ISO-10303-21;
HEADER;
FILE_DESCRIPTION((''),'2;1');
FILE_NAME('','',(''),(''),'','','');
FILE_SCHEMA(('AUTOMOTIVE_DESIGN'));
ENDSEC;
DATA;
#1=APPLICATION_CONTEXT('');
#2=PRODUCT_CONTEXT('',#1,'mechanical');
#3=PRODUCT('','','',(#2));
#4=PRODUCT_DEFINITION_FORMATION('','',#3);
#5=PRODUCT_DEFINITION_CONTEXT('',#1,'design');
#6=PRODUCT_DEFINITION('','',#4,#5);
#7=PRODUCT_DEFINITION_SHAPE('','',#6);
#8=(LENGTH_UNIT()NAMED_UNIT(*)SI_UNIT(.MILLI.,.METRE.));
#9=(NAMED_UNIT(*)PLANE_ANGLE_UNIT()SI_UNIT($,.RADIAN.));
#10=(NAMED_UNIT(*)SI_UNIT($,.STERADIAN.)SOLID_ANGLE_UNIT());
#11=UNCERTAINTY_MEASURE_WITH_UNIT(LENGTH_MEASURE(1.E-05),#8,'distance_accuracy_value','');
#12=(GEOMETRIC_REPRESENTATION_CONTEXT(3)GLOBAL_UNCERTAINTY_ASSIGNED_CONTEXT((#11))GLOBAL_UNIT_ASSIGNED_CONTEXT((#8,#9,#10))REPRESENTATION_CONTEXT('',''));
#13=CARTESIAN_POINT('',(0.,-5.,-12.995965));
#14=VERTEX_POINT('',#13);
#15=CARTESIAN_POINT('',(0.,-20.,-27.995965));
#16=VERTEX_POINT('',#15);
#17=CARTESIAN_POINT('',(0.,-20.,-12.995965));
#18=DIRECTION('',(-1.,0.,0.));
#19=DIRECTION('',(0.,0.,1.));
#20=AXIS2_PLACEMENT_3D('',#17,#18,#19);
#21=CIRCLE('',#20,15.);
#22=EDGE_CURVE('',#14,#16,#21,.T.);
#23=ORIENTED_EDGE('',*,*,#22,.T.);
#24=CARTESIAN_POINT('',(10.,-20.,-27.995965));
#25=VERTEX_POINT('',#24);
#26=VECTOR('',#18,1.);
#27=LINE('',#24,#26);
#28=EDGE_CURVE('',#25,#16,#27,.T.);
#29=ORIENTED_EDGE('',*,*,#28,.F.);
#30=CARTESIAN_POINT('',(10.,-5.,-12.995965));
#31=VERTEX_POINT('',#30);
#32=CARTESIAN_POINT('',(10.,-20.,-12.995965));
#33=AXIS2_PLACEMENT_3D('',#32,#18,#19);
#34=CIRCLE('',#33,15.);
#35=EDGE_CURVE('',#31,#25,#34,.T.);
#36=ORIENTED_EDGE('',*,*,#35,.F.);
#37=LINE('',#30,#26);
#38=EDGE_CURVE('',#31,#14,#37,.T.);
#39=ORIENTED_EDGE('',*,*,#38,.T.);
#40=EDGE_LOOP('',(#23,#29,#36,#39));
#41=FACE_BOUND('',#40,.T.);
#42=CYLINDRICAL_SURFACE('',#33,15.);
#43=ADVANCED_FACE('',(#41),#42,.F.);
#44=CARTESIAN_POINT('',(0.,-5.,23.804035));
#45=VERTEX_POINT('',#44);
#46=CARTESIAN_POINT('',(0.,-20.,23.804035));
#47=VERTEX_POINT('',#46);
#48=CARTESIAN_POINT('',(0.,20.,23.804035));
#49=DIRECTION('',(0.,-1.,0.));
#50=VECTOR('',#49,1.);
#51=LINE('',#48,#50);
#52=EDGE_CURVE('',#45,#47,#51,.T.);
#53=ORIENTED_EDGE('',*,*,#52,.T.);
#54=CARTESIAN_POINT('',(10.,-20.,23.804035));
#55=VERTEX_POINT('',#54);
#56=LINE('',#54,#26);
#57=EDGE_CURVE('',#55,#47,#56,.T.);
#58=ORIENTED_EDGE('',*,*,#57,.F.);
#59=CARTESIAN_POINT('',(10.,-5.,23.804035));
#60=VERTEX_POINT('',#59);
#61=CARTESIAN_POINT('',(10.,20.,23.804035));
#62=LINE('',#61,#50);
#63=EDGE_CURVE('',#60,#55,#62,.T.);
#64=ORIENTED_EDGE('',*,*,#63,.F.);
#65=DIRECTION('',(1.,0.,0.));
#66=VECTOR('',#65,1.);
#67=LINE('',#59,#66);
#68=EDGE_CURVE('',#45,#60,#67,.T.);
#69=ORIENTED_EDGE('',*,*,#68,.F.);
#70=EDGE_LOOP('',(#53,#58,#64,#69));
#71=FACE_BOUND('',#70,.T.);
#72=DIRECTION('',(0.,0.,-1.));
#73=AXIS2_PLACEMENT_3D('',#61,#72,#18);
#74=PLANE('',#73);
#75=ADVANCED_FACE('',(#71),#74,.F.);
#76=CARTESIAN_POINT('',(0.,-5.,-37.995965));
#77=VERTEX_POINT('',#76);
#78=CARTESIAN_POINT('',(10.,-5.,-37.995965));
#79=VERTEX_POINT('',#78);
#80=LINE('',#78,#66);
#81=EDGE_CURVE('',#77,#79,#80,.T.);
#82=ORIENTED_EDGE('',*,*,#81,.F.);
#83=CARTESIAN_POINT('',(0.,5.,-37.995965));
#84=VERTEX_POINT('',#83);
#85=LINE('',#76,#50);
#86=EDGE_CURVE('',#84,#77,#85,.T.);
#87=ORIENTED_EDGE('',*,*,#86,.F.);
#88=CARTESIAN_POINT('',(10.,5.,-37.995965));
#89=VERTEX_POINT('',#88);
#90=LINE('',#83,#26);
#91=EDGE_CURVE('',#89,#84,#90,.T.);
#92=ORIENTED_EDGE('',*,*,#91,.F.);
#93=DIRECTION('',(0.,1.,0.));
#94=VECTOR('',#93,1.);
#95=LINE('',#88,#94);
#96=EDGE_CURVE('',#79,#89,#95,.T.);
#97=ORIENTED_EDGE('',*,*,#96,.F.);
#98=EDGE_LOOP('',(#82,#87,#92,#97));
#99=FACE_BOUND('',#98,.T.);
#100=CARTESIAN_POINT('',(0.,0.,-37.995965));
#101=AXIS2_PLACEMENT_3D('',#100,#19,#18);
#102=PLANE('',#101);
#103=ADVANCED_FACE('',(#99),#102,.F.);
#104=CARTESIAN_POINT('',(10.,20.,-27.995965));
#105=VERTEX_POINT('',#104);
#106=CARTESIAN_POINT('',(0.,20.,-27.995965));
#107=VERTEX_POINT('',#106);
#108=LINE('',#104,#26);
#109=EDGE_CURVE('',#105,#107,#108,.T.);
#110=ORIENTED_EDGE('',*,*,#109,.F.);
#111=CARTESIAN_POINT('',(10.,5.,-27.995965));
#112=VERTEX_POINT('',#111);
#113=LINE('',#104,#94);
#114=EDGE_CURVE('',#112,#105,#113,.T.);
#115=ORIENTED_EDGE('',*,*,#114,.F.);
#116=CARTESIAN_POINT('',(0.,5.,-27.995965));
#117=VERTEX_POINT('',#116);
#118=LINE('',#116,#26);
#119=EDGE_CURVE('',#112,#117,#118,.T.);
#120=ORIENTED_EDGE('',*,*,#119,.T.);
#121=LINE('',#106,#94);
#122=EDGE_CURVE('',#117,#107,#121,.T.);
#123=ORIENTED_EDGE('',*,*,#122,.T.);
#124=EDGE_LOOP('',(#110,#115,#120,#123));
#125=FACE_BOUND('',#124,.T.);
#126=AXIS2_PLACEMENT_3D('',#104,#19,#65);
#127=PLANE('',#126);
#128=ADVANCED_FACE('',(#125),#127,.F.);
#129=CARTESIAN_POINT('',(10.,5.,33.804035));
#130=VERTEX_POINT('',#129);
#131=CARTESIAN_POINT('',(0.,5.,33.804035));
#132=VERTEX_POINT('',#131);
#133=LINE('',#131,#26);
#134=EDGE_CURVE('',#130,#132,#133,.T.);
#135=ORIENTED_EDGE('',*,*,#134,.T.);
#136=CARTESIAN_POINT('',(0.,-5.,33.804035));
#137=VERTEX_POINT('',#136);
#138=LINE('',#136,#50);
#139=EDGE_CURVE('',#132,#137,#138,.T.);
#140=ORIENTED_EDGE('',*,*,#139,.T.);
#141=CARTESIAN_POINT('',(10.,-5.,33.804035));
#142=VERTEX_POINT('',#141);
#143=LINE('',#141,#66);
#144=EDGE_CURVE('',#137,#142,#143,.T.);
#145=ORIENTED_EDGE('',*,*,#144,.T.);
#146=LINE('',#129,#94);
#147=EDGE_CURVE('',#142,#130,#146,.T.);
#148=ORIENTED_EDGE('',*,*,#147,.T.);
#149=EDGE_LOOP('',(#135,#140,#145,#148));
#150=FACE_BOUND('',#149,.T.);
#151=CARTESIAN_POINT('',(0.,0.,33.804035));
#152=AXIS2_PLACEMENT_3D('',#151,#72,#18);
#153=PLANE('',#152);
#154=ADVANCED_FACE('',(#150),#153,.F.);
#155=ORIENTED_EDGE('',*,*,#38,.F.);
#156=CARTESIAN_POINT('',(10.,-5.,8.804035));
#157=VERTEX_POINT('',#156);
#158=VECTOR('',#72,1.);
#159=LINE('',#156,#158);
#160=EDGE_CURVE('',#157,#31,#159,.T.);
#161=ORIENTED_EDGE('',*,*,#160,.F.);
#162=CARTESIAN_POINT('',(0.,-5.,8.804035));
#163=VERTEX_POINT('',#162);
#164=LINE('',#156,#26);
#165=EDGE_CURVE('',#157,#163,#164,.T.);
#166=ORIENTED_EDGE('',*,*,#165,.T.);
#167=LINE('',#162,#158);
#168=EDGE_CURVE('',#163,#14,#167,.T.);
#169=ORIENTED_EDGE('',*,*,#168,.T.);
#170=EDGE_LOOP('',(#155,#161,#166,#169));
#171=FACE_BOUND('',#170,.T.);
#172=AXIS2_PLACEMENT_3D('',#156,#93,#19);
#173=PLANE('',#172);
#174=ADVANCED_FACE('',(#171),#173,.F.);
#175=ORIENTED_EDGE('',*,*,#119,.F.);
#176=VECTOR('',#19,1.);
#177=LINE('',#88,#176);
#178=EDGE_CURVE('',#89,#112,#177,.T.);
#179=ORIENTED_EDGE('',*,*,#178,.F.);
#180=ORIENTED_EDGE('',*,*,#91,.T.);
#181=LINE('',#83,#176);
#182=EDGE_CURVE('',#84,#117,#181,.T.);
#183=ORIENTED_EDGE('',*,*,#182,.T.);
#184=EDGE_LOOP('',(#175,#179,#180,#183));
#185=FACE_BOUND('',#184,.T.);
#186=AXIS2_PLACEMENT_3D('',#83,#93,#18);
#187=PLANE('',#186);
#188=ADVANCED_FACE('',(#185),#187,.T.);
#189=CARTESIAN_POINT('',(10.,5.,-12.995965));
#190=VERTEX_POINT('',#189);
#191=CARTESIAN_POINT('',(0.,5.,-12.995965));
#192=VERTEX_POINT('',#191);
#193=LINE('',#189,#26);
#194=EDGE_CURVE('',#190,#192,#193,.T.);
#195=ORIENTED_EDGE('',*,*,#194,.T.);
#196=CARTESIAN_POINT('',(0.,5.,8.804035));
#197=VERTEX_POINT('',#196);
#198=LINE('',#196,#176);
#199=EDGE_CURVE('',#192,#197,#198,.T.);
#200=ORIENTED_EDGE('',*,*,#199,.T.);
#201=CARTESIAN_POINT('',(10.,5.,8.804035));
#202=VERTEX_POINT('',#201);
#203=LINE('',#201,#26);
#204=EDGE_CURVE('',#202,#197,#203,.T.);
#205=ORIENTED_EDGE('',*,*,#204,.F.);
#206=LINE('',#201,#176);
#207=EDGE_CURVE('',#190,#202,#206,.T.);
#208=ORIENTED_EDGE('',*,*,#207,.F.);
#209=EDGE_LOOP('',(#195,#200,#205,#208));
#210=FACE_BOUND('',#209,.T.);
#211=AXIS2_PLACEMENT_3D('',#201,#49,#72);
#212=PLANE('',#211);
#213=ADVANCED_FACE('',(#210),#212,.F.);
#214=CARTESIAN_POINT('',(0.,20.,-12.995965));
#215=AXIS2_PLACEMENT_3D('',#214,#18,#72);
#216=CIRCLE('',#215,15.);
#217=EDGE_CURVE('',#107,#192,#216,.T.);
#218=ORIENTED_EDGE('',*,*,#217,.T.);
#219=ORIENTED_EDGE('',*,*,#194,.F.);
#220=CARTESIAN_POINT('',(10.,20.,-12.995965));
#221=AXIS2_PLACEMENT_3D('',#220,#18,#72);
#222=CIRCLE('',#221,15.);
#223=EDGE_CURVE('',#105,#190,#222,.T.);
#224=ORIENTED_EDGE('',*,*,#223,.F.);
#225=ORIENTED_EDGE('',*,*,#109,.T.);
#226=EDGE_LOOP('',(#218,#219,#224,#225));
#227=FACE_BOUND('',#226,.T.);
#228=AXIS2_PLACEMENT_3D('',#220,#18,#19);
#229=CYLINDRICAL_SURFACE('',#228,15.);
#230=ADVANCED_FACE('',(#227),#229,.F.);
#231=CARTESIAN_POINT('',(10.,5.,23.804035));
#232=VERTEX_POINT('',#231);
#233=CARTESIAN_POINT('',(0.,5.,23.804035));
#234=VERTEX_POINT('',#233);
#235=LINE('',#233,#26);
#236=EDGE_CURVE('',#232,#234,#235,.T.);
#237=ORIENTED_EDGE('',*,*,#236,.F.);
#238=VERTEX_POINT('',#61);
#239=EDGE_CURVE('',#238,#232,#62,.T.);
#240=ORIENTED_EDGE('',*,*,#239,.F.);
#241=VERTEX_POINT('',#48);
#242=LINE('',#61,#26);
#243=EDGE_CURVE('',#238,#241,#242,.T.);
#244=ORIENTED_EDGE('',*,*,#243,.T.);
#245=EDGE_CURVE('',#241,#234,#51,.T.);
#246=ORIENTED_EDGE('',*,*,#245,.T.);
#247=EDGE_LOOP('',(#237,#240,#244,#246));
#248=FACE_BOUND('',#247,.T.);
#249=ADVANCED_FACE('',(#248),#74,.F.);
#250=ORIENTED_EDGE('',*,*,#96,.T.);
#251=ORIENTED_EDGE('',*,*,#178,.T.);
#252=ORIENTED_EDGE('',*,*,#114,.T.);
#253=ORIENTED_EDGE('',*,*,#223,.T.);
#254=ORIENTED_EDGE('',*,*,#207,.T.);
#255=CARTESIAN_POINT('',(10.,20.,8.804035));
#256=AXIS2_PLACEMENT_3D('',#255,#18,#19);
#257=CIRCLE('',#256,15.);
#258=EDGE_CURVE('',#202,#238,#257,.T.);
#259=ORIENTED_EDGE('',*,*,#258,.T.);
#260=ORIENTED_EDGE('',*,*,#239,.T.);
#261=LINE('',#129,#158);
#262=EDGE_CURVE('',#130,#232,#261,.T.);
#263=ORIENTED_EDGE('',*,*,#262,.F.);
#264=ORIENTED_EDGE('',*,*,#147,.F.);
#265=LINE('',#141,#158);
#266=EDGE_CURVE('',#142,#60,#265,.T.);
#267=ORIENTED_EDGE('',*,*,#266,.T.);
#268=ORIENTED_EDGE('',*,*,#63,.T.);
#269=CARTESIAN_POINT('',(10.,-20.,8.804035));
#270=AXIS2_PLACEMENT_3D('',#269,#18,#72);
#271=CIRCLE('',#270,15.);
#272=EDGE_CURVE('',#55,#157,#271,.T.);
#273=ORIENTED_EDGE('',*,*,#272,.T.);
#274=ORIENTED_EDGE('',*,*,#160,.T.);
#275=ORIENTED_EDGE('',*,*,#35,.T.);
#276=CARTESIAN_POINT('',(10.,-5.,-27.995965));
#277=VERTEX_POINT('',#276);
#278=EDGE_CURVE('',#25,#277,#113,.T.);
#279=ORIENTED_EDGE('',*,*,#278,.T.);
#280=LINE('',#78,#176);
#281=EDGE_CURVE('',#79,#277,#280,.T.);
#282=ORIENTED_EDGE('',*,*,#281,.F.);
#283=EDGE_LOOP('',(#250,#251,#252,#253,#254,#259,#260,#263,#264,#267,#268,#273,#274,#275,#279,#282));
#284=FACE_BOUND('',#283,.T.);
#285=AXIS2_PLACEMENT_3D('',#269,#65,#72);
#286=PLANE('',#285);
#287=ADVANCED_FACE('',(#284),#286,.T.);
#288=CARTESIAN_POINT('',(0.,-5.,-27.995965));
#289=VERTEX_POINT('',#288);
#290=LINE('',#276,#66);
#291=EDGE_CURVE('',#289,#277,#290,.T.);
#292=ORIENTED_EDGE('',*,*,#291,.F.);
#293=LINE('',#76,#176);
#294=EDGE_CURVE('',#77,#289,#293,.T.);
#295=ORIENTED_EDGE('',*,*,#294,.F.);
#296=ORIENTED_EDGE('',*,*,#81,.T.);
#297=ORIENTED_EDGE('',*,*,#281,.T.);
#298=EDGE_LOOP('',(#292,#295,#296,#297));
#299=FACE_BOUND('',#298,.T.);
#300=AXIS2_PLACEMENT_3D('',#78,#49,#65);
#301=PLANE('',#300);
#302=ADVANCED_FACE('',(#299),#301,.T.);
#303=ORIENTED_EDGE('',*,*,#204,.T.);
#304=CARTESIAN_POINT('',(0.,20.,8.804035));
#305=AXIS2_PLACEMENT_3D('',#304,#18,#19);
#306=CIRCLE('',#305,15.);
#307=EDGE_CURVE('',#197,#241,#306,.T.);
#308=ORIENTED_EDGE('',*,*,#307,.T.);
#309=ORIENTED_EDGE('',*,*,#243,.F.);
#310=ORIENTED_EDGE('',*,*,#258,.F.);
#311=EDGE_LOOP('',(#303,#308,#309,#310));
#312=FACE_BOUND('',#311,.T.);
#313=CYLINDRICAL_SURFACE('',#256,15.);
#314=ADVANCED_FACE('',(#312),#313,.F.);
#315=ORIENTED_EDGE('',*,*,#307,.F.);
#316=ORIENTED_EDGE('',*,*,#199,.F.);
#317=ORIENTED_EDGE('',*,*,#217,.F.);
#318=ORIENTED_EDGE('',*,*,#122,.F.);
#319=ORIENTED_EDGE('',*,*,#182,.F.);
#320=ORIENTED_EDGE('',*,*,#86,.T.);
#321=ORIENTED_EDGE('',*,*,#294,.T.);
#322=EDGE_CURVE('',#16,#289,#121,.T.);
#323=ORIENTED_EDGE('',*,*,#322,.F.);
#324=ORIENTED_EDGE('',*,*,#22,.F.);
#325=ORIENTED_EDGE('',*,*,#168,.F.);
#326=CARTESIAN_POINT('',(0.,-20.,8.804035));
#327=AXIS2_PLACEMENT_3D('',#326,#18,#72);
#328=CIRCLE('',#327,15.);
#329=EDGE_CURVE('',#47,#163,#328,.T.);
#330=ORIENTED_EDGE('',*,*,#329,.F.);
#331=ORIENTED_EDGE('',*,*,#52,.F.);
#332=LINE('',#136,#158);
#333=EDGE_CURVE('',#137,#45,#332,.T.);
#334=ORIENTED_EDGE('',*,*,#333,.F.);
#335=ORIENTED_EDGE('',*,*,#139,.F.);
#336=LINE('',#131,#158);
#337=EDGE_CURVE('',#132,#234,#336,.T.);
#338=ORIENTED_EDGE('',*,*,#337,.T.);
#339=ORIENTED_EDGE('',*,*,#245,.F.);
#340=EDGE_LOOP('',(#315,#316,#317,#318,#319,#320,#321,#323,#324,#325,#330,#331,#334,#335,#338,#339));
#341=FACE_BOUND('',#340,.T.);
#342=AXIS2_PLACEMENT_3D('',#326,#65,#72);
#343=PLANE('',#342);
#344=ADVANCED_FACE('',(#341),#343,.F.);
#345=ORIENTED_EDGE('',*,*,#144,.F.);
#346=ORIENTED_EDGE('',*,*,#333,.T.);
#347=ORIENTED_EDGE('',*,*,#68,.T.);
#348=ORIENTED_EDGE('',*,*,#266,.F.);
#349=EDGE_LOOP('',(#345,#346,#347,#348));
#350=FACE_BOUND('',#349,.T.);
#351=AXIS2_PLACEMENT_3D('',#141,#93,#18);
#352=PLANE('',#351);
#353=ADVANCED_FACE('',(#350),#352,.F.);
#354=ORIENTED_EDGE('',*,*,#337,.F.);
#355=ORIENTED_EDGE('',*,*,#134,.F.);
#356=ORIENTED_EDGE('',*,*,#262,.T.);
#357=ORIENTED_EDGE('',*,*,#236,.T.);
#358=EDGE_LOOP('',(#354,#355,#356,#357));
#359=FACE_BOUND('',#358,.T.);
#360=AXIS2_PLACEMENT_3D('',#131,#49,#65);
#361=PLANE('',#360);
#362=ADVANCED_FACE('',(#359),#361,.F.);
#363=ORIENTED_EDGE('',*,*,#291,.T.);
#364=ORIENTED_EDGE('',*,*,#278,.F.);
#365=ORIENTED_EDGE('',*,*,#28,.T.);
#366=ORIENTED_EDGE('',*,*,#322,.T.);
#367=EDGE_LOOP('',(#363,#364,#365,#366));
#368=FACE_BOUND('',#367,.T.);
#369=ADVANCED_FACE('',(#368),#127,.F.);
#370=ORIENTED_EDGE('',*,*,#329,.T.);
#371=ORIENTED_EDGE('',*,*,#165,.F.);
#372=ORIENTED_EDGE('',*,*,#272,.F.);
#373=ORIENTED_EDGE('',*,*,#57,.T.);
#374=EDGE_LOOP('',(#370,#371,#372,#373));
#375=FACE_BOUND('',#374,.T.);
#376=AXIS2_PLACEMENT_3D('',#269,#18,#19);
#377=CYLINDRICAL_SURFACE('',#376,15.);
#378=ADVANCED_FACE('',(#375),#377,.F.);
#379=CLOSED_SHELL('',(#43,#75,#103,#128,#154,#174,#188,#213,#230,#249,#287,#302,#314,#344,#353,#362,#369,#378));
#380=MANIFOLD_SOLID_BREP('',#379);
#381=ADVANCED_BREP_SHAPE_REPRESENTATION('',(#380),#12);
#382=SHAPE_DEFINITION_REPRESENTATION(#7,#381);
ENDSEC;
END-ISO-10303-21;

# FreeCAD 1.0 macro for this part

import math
import FreeCAD as App
import Part
import Sketcher

doc = App.newDocument("Part")
params = doc.addObject("Spreadsheet::Sheet", "Params")
for row, (alias, value) in enumerate([
    ("sketch1_radius", "15 mm"),
    ("sketch1_width", "40 mm"),
    ("sketch1_height", "21.8 mm"),
    ("pad1_length", "10 mm"),
    ("sketch2_width", "10 mm"),
    ("pad2_length", "10 mm"),
], start=1):
    params.set(f"A{row}", alias)
    params.set(f"B{row}", "=" + value)
    params.setAlias(f"B{row}", alias)

body = doc.addObject("PartDesign::Body", "Body")

sketch1 = body.newObject("Sketcher::SketchObject", "Sketch")
sketch1.AttachmentSupport = (doc.getObject("YZ_Plane"), [""])
sketch1.MapMode = "FlatFace"
sketch1.addGeometry([
    Part.LineSegment(App.Vector(5, -13, 0), App.Vector(5, 9, 0)),
    Part.ArcOfCircle(Part.Circle(App.Vector(20, 9, 0), App.Vector(0, 0, 1), 15), math.radians(90), math.radians(180)),
    Part.LineSegment(App.Vector(20, 24, 0), App.Vector(-20, 24, 0)),
    Part.ArcOfCircle(Part.Circle(App.Vector(-20, 9, 0), App.Vector(0, 0, 1), 15), math.radians(0), math.radians(90)),
    Part.LineSegment(App.Vector(-5, 9, 0), App.Vector(-5, -13, 0)),
    Part.ArcOfCircle(Part.Circle(App.Vector(-20, -13, 0), App.Vector(0, 0, 1), 15), math.radians(-90), math.radians(0)),
    Part.LineSegment(App.Vector(-20, -28, 0), App.Vector(20, -28, 0)),
    Part.ArcOfCircle(Part.Circle(App.Vector(20, -13, 0), App.Vector(0, 0, 1), 15), math.radians(180), math.radians(270)),
], False)
sketch1.addConstraint([
    Sketcher.Constraint("Tangent", 0, 2, 1, 2),
    Sketcher.Constraint("Tangent", 1, 1, 2, 1),
    Sketcher.Constraint("Tangent", 2, 2, 3, 2),
    Sketcher.Constraint("Tangent", 3, 1, 4, 1),
    Sketcher.Constraint("Tangent", 4, 2, 5, 2),
    Sketcher.Constraint("Tangent", 5, 1, 6, 1),
    Sketcher.Constraint("Tangent", 6, 2, 7, 2),
    Sketcher.Constraint("Tangent", 7, 1, 0, 1),
    Sketcher.Constraint("Vertical", 0),
    Sketcher.Constraint("Horizontal", 2),
    Sketcher.Constraint("Vertical", 4),
    Sketcher.Constraint("Horizontal", 6),
    Sketcher.Constraint("Equal", 1, 3),
    Sketcher.Constraint("Equal", 3, 5),
    Sketcher.Constraint("Equal", 5, 7),
    Sketcher.Constraint("Radius", 1, 15.0),
    Sketcher.Constraint("DistanceX", 2, 2, 2, 1, 40.0),
    Sketcher.Constraint("DistanceY", 0, 1, 0, 2, 21.8),
    Sketcher.Constraint("DistanceX", -1, 1, 1, 3, 20.0),
    Sketcher.Constraint("DistanceY", -1, 1, 1, 3, 8.804035),
])
sketch1.setExpression("Constraints[15]", "Params.sketch1_radius")
sketch1.setExpression("Constraints[16]", "Params.sketch1_width")
sketch1.setExpression("Constraints[17]", "Params.sketch1_height")
pad1 = body.newObject("PartDesign::Pad", "Pad")
pad1.Profile = sketch1
pad1.setExpression("Length", "Params.pad1_length")

sketch2 = body.newObject("Sketcher::SketchObject", "Sketch001")
sketch2.AttachmentSupport = (doc.getObject("XY_Plane"), [""])
sketch2.MapMode = "FlatFace"
sketch2.AttachmentOffset = App.Placement(App.Vector(0, 0, 23.804035), App.Rotation())
sketch2.addGeometry([
    Part.LineSegment(App.Vector(0, 5, 0), App.Vector(0, -5, 0)),
    Part.LineSegment(App.Vector(0, -5, 0), App.Vector(10, -5, 0)),
    Part.LineSegment(App.Vector(10, -5, 0), App.Vector(10, 5, 0)),
    Part.LineSegment(App.Vector(10, 5, 0), App.Vector(0, 5, 0)),
], False)
sketch2.addConstraint([
    Sketcher.Constraint("Coincident", 0, 2, 1, 1),
    Sketcher.Constraint("Coincident", 1, 2, 2, 1),
    Sketcher.Constraint("Coincident", 2, 2, 3, 1),
    Sketcher.Constraint("Coincident", 3, 2, 0, 1),
    Sketcher.Constraint("Vertical", 0),
    Sketcher.Constraint("Horizontal", 1),
    Sketcher.Constraint("Vertical", 2),
    Sketcher.Constraint("Horizontal", 3),
    Sketcher.Constraint("Symmetric", 0, 2, 3, 2, -1, 1),
    Sketcher.Constraint("Equal", 3, 0),
    Sketcher.Constraint("DistanceX", 1, 1, 1, 2, 10.0),
])
sketch2.setExpression("Constraints[10]", "Params.sketch2_width")
pad2 = body.newObject("PartDesign::Pad", "Pad001")
pad2.Profile = sketch2
pad2.setExpression("Length", "Params.pad2_length")
doc.recompute()

datumplane = body.newObject("PartDesign::Plane", "DatumPlane")
datumplane.AttachmentSupport = (doc.getObject("XY_Plane"), [""])
datumplane.MapMode = "FlatFace"
datumplane.AttachmentOffset = App.Placement(App.Vector(0, 0, -2.095965), App.Rotation())
mirrored = body.newObject("PartDesign::Mirrored", "Mirrored")
mirrored.Originals = [pad2]
mirrored.MirrorPlane = (datumplane, [""])
body.Tip = mirrored

doc.recompute()
